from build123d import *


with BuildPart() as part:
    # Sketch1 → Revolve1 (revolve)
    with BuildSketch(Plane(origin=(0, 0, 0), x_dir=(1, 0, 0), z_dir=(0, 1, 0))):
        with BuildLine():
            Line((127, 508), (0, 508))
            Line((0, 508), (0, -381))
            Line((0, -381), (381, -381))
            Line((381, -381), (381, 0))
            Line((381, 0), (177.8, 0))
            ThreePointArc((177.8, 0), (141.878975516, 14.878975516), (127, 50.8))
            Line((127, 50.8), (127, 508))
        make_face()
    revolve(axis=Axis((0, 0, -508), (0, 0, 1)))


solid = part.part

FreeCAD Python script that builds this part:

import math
import FreeCAD as App
import Part
import Sketcher

V = App.Vector
Q = App.Units.Quantity

doc = App.newDocument("Part")
params = doc.addObject("Spreadsheet::Sheet", "Params")
for row, (alias, value) in enumerate([
    ("sketch1_radius", "2 in"),
    ("sketch1_width", "5 in"),
    ("sketch1_width2", "15 in"),
    ("sketch1_height", "35 in"),
    ("revolution_angle", "360 deg"),
], start=1):
    params.set(f"A{row}", alias)
    params.set(f"B{row}", "=" + value)
    params.setAlias(f"B{row}", alias)

body = doc.addObject("PartDesign::Body", "Body")

# Sketch on XZ plane
sketch1 = doc.addObject("Sketcher::SketchObject", "Sketch")
body.addObject(sketch1)
sketch1.AttachmentSupport = (doc.XZ_Plane, [""])
sketch1.MapMode = "FlatFace"
sketch1.addGeometry([
    Part.LineSegment(V(127, -508, 0), V(0, -508, 0)),  # 0
    Part.LineSegment(V(0, -508, 0), V(0, 381, 0)),  # 1
    Part.LineSegment(V(0, 381, 0), V(381, 381, 0)),  # 2
    Part.LineSegment(V(381, 381, 0), V(381, 0, 0)),  # 3
    Part.LineSegment(V(381, 0, 0), V(177.8, 0, 0)),  # 4
    Part.ArcOfCircle(Part.Circle(V(177.8, -50.8, 0), V(0, 0, 1), 50.8), math.radians(90), math.radians(180)),  # 5
    Part.LineSegment(V(127, -50.8, 0), V(127, -508, 0)),  # 6
], False)
sketch1.addConstraint([
    Sketcher.Constraint("Coincident", 0, 2, 1, 1),
    Sketcher.Constraint("Coincident", 1, 2, 2, 1),
    Sketcher.Constraint("Coincident", 2, 2, 3, 1),
    Sketcher.Constraint("Coincident", 3, 2, 4, 1),
    Sketcher.Constraint("Tangent", 4, 2, 5, 1),
    Sketcher.Constraint("Tangent", 5, 2, 6, 1),
    Sketcher.Constraint("Coincident", 6, 2, 0, 1),
    Sketcher.Constraint("Horizontal", 0),
    Sketcher.Constraint("Vertical", 1),
    Sketcher.Constraint("Horizontal", 2),
    Sketcher.Constraint("Vertical", 3),
    Sketcher.Constraint("Horizontal", 4),
    Sketcher.Constraint("Vertical", 6),
    Sketcher.Constraint("PointOnObject", 0, 2, -2),
    Sketcher.Constraint("PointOnObject", 3, 2, -1),
    Sketcher.Constraint("Equal", 2, 3),
    Sketcher.Constraint("Radius", 5, Q("2 in")),
    Sketcher.Constraint("DistanceX", 0, 2, 0, 1, Q("5 in")),
    Sketcher.Constraint("DistanceX", 2, 1, 2, 2, Q("15 in")),
    Sketcher.Constraint("DistanceY", 1, 1, 1, 2, Q("35 in")),
])
sketch1.setExpression("Constraints[16]", "Params.sketch1_radius")
sketch1.setExpression("Constraints[17]", "Params.sketch1_width")
sketch1.setExpression("Constraints[18]", "Params.sketch1_width2")
sketch1.setExpression("Constraints[19]", "Params.sketch1_height")
revolution = doc.addObject("PartDesign::Revolution", "Revolution")
body.addObject(revolution)
revolution.Profile = sketch1
revolution.ReferenceAxis = (sketch1, ["V_Axis"])
revolution.setExpression("Angle", "Params.revolution_angle")

doc.recompute()
